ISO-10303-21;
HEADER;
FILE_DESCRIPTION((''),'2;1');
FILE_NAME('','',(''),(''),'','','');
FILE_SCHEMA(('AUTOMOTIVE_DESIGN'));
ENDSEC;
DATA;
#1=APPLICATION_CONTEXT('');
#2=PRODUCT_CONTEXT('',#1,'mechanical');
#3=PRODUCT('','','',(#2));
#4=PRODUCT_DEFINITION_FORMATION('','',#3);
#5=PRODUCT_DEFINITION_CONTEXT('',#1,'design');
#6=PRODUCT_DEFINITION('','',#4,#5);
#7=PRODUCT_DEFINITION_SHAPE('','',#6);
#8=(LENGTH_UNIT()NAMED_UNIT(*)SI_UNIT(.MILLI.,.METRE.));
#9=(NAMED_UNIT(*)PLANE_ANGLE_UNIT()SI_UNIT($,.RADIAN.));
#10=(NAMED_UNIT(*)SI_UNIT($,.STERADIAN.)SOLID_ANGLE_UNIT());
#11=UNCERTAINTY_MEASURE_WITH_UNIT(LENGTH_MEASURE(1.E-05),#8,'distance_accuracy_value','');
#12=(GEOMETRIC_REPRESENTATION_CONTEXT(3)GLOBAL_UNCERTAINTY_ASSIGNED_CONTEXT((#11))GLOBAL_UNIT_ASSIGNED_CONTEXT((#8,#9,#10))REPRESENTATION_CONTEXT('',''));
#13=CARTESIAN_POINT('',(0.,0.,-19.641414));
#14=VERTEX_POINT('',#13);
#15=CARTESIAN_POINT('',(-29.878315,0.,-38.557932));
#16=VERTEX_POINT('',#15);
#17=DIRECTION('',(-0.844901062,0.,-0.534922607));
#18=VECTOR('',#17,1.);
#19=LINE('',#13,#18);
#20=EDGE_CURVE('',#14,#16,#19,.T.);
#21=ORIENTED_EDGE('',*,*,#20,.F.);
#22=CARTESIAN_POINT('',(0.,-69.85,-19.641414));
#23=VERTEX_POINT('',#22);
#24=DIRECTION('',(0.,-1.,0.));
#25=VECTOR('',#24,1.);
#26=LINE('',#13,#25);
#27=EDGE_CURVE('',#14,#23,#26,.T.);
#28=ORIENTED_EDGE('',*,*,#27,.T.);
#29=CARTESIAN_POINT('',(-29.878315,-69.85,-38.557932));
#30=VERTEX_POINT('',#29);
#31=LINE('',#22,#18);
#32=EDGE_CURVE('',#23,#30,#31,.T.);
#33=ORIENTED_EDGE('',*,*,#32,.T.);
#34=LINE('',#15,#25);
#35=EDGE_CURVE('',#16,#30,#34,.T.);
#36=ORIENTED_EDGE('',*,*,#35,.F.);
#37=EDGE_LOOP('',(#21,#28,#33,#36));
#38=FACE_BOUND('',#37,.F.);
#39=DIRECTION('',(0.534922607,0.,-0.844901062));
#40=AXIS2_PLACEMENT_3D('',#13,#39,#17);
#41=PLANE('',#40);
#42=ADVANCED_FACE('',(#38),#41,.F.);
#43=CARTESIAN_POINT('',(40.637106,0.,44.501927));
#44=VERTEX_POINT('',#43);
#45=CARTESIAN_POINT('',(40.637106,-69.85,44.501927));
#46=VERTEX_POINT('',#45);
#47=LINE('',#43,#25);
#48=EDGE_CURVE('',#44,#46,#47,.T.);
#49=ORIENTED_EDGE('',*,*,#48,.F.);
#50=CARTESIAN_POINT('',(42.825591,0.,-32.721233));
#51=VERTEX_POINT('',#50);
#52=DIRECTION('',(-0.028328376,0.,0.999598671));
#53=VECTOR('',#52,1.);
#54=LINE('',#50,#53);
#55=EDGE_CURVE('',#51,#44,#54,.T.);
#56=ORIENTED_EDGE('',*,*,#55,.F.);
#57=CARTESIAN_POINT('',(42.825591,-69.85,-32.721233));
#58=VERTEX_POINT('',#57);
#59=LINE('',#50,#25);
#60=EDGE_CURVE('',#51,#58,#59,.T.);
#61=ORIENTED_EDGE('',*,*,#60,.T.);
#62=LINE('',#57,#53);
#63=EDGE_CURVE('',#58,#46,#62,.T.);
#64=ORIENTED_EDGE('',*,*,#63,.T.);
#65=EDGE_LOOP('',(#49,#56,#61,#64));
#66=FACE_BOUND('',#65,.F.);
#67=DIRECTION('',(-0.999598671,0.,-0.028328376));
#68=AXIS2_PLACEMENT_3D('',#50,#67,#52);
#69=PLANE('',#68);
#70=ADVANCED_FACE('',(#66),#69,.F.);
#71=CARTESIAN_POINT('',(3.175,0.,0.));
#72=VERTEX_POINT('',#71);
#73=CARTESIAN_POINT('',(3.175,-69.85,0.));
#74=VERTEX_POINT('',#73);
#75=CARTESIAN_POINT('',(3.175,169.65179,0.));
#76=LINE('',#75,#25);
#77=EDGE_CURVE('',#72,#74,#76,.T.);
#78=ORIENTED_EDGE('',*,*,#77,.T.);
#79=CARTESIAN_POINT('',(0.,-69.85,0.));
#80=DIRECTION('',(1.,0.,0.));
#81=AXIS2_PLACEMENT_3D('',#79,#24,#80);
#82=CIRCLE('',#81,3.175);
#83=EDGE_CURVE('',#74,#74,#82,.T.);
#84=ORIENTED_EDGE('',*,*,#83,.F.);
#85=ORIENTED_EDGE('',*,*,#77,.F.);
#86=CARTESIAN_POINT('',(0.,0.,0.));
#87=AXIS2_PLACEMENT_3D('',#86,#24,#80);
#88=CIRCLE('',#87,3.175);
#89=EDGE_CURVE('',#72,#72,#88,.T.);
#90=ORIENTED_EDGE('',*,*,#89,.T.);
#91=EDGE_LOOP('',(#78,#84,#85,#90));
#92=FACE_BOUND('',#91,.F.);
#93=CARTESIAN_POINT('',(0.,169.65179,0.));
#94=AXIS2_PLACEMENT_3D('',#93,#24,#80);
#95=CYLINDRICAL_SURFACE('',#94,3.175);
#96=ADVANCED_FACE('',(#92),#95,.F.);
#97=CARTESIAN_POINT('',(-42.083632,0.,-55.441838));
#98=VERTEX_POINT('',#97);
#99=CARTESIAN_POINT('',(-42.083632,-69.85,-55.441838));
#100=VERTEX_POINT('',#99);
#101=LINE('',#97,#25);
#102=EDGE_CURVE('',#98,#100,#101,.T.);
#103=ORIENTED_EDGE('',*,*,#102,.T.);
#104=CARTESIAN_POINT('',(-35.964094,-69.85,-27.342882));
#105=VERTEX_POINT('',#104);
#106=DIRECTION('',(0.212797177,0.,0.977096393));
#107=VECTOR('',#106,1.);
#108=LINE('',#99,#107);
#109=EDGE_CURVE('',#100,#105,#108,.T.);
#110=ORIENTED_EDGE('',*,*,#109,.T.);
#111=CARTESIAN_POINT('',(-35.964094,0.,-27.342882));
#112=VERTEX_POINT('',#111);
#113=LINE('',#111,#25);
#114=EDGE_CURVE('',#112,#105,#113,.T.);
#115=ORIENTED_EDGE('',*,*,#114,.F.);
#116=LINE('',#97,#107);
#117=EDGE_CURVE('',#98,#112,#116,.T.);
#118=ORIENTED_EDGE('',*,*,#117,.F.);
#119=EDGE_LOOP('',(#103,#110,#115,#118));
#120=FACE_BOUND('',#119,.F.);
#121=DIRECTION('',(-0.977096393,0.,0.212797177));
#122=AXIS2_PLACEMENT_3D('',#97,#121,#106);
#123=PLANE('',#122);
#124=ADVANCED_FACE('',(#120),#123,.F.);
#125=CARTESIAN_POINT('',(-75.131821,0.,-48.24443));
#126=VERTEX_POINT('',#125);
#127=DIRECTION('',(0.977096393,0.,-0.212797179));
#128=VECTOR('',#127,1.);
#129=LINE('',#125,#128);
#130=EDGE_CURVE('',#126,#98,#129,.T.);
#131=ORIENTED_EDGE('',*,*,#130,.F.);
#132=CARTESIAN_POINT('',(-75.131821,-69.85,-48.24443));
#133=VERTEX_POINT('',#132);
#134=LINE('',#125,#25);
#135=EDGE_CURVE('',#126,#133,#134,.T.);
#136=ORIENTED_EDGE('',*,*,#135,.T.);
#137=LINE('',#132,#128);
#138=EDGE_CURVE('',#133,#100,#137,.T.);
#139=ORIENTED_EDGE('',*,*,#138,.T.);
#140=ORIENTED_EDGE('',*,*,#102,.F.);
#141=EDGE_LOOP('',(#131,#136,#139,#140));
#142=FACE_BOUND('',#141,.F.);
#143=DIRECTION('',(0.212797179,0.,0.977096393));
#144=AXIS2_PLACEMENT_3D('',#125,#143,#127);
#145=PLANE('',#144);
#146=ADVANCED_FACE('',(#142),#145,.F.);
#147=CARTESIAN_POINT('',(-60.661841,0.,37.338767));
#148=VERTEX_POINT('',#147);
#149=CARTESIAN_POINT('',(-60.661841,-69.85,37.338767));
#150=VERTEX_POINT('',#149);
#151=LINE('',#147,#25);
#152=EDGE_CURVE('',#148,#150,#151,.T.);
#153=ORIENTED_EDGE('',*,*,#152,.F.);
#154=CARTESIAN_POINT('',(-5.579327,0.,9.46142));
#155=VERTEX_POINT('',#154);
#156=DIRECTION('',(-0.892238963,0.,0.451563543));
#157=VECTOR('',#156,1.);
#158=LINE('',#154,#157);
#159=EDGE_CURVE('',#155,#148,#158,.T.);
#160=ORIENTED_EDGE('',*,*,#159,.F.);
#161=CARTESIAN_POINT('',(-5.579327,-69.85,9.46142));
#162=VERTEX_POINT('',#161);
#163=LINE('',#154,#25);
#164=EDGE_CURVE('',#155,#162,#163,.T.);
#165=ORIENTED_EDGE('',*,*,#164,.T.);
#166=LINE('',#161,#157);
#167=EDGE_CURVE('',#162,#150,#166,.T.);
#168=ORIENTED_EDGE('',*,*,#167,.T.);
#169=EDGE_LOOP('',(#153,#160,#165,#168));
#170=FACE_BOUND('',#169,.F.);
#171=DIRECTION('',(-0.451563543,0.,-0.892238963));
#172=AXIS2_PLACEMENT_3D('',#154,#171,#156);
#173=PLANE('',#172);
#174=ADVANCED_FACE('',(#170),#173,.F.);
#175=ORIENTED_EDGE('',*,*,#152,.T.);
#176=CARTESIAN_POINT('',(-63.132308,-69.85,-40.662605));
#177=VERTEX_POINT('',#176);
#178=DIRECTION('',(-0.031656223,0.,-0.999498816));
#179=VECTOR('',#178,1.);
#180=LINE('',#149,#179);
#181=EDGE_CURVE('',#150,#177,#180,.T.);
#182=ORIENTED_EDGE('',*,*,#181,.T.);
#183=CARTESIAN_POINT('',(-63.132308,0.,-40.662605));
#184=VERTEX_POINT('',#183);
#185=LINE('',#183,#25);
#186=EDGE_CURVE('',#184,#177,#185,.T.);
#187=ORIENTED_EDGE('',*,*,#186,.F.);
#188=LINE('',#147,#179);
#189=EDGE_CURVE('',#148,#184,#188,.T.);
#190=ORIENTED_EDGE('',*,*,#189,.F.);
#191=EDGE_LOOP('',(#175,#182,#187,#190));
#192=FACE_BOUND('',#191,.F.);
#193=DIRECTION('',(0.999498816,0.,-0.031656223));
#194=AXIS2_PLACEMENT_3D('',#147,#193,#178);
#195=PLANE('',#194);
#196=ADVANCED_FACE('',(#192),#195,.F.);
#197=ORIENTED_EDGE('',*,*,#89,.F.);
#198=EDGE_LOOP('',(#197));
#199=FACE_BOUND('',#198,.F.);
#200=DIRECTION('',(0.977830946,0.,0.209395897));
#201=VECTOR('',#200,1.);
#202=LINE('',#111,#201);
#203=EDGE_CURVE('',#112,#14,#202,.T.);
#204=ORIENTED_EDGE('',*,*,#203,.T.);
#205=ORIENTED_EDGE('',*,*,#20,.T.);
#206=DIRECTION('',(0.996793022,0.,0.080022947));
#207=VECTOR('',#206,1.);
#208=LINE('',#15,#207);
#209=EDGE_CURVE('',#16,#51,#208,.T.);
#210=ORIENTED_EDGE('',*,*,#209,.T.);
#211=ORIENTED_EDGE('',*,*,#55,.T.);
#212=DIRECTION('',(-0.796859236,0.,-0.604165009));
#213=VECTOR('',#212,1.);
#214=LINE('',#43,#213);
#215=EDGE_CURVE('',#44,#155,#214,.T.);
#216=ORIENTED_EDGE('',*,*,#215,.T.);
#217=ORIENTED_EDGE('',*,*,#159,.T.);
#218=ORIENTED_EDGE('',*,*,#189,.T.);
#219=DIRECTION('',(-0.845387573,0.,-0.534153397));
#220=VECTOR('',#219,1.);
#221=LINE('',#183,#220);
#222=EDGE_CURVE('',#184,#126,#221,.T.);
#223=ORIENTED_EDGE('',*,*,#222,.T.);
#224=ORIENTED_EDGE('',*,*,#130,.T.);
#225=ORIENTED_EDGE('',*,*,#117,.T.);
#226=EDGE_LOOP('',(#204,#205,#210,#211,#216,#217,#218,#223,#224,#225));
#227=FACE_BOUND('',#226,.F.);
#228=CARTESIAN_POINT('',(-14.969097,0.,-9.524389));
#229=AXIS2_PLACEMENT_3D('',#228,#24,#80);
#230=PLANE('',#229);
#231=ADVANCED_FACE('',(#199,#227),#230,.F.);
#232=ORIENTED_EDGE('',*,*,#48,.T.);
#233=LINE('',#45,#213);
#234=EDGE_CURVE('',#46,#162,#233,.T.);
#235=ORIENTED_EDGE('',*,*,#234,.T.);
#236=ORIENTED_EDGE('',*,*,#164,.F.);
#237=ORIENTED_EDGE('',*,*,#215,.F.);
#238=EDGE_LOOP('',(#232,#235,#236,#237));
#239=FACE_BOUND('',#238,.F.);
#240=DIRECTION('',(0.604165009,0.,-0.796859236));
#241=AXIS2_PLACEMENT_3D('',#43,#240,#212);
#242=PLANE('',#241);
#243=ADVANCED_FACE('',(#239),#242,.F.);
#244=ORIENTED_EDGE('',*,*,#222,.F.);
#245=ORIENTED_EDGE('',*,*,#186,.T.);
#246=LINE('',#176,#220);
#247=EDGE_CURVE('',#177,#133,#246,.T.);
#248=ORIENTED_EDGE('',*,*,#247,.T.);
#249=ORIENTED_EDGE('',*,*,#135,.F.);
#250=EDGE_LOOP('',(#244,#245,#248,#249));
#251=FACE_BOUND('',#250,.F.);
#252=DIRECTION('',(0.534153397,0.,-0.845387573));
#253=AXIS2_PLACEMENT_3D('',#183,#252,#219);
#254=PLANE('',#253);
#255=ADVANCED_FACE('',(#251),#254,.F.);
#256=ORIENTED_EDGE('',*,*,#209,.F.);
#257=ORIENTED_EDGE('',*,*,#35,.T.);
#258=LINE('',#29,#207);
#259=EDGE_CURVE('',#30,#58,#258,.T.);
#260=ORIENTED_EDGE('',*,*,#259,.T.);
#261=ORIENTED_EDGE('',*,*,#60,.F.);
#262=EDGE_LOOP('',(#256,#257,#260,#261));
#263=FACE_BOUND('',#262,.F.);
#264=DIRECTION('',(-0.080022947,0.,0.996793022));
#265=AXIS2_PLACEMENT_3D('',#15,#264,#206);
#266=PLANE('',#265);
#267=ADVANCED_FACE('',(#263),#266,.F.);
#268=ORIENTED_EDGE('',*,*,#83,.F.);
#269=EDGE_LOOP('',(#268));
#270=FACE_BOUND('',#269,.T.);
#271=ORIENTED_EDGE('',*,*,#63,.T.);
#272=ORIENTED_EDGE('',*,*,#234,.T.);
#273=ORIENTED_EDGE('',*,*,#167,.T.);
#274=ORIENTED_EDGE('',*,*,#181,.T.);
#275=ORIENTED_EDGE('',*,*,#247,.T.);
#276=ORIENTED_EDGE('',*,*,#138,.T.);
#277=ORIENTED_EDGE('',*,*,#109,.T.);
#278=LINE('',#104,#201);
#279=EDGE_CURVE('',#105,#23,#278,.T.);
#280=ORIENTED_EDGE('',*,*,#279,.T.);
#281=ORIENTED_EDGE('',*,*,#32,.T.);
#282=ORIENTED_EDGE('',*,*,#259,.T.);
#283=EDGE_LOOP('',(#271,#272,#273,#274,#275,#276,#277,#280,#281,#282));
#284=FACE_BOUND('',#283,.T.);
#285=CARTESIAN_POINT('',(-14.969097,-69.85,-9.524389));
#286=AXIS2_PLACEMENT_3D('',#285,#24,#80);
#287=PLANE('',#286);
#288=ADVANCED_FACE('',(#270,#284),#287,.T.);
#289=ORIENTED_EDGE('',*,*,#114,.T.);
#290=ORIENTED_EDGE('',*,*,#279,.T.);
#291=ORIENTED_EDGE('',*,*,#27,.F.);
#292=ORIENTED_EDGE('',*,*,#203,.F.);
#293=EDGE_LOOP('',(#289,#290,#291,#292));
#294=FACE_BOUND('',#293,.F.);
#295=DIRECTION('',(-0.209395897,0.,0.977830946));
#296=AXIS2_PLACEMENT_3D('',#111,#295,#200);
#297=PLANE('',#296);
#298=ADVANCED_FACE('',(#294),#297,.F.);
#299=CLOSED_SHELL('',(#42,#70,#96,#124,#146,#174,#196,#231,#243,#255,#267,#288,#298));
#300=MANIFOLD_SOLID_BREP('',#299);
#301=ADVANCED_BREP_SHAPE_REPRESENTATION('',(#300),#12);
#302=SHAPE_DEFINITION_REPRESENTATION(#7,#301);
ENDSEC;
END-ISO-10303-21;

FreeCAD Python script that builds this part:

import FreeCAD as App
import Part
import Sketcher
from FreeCAD import Vector
Q = App.Units.Quantity

doc = App.newDocument("Part")
body = doc.addObject("PartDesign::Body", "Body")

# Sketch on XZ plane
sketch1 = body.newObject("Sketcher::SketchObject", "Sketch")
sketch1.AttachmentSupport = (doc.getObject("XZ_Plane"), [""])
sketch1.MapMode = "FlatFace"
sketch1.addGeometry(Part.LineSegment(Vector(-61, 37, 0), Vector(-63, -41, 0)), False)
sketch1.addGeometry(Part.LineSegment(Vector(-63, -41, 0), Vector(-75, -48, 0)), False)
sketch1.addGeometry(Part.LineSegment(Vector(-75, -48, 0), Vector(-42, -55, 0)), False)
sketch1.addGeometry(Part.LineSegment(Vector(-42, -55, 0), Vector(-36, -27, 0)), False)
sketch1.addGeometry(Part.LineSegment(Vector(-36, -27, 0), Vector(0, -20, 0)), False)
sketch1.addGeometry(Part.LineSegment(Vector(0, -20, 0), Vector(-30, -39, 0)), False)
sketch1.addGeometry(Part.LineSegment(Vector(-30, -39, 0), Vector(43, -33, 0)), False)
sketch1.addGeometry(Part.LineSegment(Vector(43, -33, 0), Vector(41, 45, 0)), False)
sketch1.addGeometry(Part.LineSegment(Vector(41, 45, 0), Vector(-6, 9, 0)), False)
sketch1.addGeometry(Part.LineSegment(Vector(-6, 9, 0), Vector(-61, 37, 0)), False)
sketch1.addConstraint(Sketcher.Constraint("Coincident", 0, 2, 1, 1))
sketch1.addConstraint(Sketcher.Constraint("Coincident", 1, 2, 2, 1))
sketch1.addConstraint(Sketcher.Constraint("Coincident", 2, 2, 3, 1))
sketch1.addConstraint(Sketcher.Constraint("Coincident", 3, 2, 4, 1))
sketch1.addConstraint(Sketcher.Constraint("Coincident", 4, 2, 5, 1))
sketch1.addConstraint(Sketcher.Constraint("Coincident", 5, 2, 6, 1))
sketch1.addConstraint(Sketcher.Constraint("Coincident", 6, 2, 7, 1))
sketch1.addConstraint(Sketcher.Constraint("Coincident", 7, 2, 8, 1))
sketch1.addConstraint(Sketcher.Constraint("Coincident", 8, 2, 9, 1))
sketch1.addConstraint(Sketcher.Constraint("Coincident", 9, 2, 0, 1))
sketch1.addConstraint(Sketcher.Constraint("PointOnObject", 4, 2, -2))
sketch1.addConstraint(Sketcher.Constraint("Perpendicular", 2, 3))
sketch1.addConstraint(Sketcher.Constraint("DistanceY", 5, 2, 6, 2, Q("5.836699 mm")))
sketch1.addConstraint(Sketcher.Constraint("DistanceX", 0, 2, 6, 2, Q("105.957899 mm")))
sketch1.addConstraint(Sketcher.Constraint("DistanceX", 3, 2, 7, 2, Q("76.6012 mm")))
sketch1.addConstraint(Sketcher.Constraint("DistanceY", 5, 2, 9, 2, Q("75.896699 mm")))
sketch1.addConstraint(Sketcher.Constraint("Distance", 3, Q("28.757609 mm")))
sketch1.addConstraint(Sketcher.Constraint("Distance", 4, Q("36.77946 mm")))
sketch1.addConstraint(Sketcher.Constraint("Distance", 8, Q("57.99824 mm")))
sketch1.addConstraint(Sketcher.Constraint("Distance", 9, Q("61.735159 mm")))
sketch1.addConstraint(Sketcher.Constraint("DistanceX", 0, 2, -1, 1, Q("63.132308 mm")))
sketch1.addConstraint(Sketcher.Constraint("DistanceX", 1, 2, -1, 1, Q("75.131821 mm")))
sketch1.addConstraint(Sketcher.Constraint("DistanceY", 1, 2, -1, 1, Q("48.24443 mm")))
sketch1.addConstraint(Sketcher.Constraint("DistanceY", 3, 2, -1, 1, Q("27.342882 mm")))
sketch1.addConstraint(Sketcher.Constraint("DistanceY", -1, 1, 8, 2, Q("9.46142 mm")))
sketch1.addConstraint(Sketcher.Constraint("DistanceX", 9, 2, -1, 1, Q("60.661841 mm")))
sketch1.addConstraint(Sketcher.Constraint("DistanceX", 1, 2, 2, 2, Q("33.048189 mm")))
sketch1.addConstraint(Sketcher.Constraint("DistanceY", 0, 2, 4, 2, Q("21.021191 mm")))
sketch1.addConstraint(Sketcher.Constraint("DistanceX", 3, 2, 5, 2, Q("6.085779 mm")))
sketch1.addConstraint(Sketcher.Constraint("DistanceY", 5, 2, 3, 2, Q("11.21505 mm")))
pad1 = body.newObject("PartDesign::Pad", "Pad")
pad1.Profile = sketch1
pad1.Length = Q("2.75 in")

# Sketch on XZ plane
sketch2 = body.newObject("Sketcher::SketchObject", "Sketch001")
sketch2.AttachmentSupport = (doc.getObject("XZ_Plane"), [""])
sketch2.MapMode = "FlatFace"
sketch2.addGeometry(Part.Circle(Vector(0, 0, 0), Vector(0, 0, 1), 3.2), False)
sketch2.addConstraint(Sketcher.Constraint("Coincident", 0, 3, -1, 1))
sketch2.addConstraint(Sketcher.Constraint("Diameter", 0, Q("0.25 in")))
doc.recompute()
hole = body.newObject("PartDesign::Hole", "Hole")
hole.Profile = sketch2
hole.ThreadType = "None"
hole.Diameter = Q("0.25 in")
hole.DepthType = "ThroughAll"
hole.Reversed = True

doc.recompute()
